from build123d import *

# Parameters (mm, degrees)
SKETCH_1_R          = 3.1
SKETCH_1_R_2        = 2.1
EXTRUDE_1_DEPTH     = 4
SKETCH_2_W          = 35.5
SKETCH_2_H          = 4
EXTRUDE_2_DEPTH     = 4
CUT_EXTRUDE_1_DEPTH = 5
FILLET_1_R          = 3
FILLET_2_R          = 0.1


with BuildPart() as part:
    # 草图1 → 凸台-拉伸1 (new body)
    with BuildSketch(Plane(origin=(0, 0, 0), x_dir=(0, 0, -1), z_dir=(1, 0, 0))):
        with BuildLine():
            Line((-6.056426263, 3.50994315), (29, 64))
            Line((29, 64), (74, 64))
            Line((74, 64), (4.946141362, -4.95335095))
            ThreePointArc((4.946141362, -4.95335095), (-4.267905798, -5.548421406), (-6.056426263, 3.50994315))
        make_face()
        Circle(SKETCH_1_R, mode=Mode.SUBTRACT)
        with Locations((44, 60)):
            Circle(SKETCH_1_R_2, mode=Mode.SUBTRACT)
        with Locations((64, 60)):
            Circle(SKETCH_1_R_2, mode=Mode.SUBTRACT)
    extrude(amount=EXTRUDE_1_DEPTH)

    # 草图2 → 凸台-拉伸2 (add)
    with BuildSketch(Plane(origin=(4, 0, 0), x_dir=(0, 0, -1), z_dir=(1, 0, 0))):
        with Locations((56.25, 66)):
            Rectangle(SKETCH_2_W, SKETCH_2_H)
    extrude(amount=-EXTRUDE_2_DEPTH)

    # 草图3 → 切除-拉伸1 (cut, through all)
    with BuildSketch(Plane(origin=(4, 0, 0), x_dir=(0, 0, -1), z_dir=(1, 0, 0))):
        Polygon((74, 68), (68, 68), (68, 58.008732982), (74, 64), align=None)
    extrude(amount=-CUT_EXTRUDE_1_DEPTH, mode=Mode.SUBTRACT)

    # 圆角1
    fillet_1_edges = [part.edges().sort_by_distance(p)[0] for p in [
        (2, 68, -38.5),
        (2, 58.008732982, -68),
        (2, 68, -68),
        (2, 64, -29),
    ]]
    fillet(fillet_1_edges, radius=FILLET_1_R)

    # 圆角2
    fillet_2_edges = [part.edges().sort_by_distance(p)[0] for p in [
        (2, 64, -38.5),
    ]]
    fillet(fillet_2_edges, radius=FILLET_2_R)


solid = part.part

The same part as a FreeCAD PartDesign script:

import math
import FreeCAD as App
import Part
import Sketcher

V = App.Vector


def edges_at(feature, points):
    """Names of the edges that pass closest to the given points."""
    edges = feature.Shape.Edges
    near = lambda p: min(range(len(edges)), key=lambda i: edges[i].distToShape(Part.Vertex(*p))[0])
    return sorted({f"Edge{near(p) + 1}" for p in points})


def add_polygon(sketch, points):
    """Adds a closed chain of lines whose ends are joined by coincident constraints."""
    first, n = sketch.GeometryCount, len(points)
    for a, b in zip(points, points[1:] + points[:1]):
        sketch.addGeometry(Part.LineSegment(App.Vector(*a, 0), App.Vector(*b, 0)), False)
    for i in range(n):
        sketch.addConstraint(Sketcher.Constraint("Coincident", first + i, 2, first + (i + 1) % n, 1))

doc = App.newDocument("Part")
body = doc.addObject("PartDesign::Body", "Body")

# Sketch on YZ plane
sketch1 = body.newObject("Sketcher::SketchObject", "Sketch")
sketch1.AttachmentSupport = (doc.getObject("YZ_Plane"), [""])
sketch1.MapMode = "FlatFace"
sketch1.addGeometry([
    Part.LineSegment(V(64, -29, 0), V(3.509943, 6.056426, 0)),  # 0
    Part.ArcOfCircle(Part.Circle(V(0, 0, 0), V(0, 0, 1), 7), math.radians(59.905979), math.radians(224.958273)),  # 1
    Part.LineSegment(V(-4.953351, -4.946141, 0), V(64, -74, 0)),  # 2
    Part.LineSegment(V(64, -74, 0), V(64, -29, 0)),  # 3
    Part.Circle(V(0, 0, 0), V(0, 0, 1), 3.1),  # 4
    Part.Circle(V(60, -64, 0), V(0, 0, 1), 2.1),  # 5
    Part.Circle(V(60, -44, 0), V(0, 0, 1), 2.1),  # 6
], False)
sketch1.addConstraint([
    Sketcher.Constraint("Tangent", 0, 2, 1, 1),
    Sketcher.Constraint("Tangent", 1, 2, 2, 1),
    Sketcher.Constraint("Coincident", 2, 2, 3, 1),
    Sketcher.Constraint("Coincident", 3, 2, 0, 1),
    Sketcher.Constraint("Vertical", 3),
    Sketcher.Constraint("Coincident", 1, 3, -1, 1),
    Sketcher.Constraint("Coincident", 4, 3, -1, 1),
    Sketcher.Constraint("Equal", 5, 6),
    Sketcher.Constraint("Vertical", 5, 3, 6, 3),
    Sketcher.Constraint("Radius", 1, 7.0),
    Sketcher.Constraint("Diameter", 4, 6.2),
    Sketcher.Constraint("Diameter", 5, 4.2),
    Sketcher.Constraint("DistanceY", 3, 1, 3, 2, 45.0),
    Sketcher.Constraint("DistanceX", -1, 1, 5, 3, 60.0),
    Sketcher.Constraint("DistanceY", 5, 3, -1, 1, 64.0),
    Sketcher.Constraint("DistanceY", 6, 3, -1, 1, 44.0),
    Sketcher.Constraint("DistanceX", -1, 1, 2, 2, 64.0),
    Sketcher.Constraint("DistanceY", 2, 2, -1, 1, 74.0),
])
pad1 = body.newObject("PartDesign::Pad", "Pad")
pad1.Profile = sketch1
pad1.Length = 4

# Sketch on YZ plane
sketch2 = body.newObject("Sketcher::SketchObject", "Sketch001")
sketch2.AttachmentSupport = (doc.getObject("YZ_Plane"), [""])
sketch2.MapMode = "FlatFace"
sketch2.AttachmentOffset = App.Placement(V(0, 0, 4), App.Rotation())
add_polygon(sketch2, [(68, -38.5), (64, -38.5), (64, -74), (68, -74)])  # lines 0-3
sketch2.addConstraint([
    Sketcher.Constraint("Horizontal", 0),
    Sketcher.Constraint("Vertical", 1),
    Sketcher.Constraint("Horizontal", 2),
    Sketcher.Constraint("Vertical", 3),
    Sketcher.Constraint("DistanceX", 0, 2, 0, 1, 4.0),
    Sketcher.Constraint("DistanceY", 1, 2, 1, 1, 35.5),
    Sketcher.Constraint("DistanceX", -1, 1, 0, 2, 64.0),
    Sketcher.Constraint("DistanceY", 1, 2, -1, 1, 74.0),
])
pad2 = body.newObject("PartDesign::Pad", "Pad001")
pad2.Profile = sketch2
pad2.Length = 4
pad2.Reversed = True

# Sketch on YZ plane
sketch3 = body.newObject("Sketcher::SketchObject", "Sketch002")
sketch3.AttachmentSupport = (doc.getObject("YZ_Plane"), [""])
sketch3.MapMode = "FlatFace"
sketch3.AttachmentOffset = App.Placement(V(0, 0, 4), App.Rotation())
add_polygon(sketch3, [(68, -74), (68, -68), (58.008733, -68), (64, -74)])  # lines 0-3
sketch3.addConstraint([
    Sketcher.Constraint("Vertical", 0),
    Sketcher.Constraint("Horizontal", 1),
    Sketcher.Constraint("Horizontal", 3),
    Sketcher.Constraint("DistanceX", 3, 1, 3, 2, 4.0),
    Sketcher.Constraint("DistanceY", 0, 1, 0, 2, 6.0),
    Sketcher.Constraint("DistanceX", -1, 1, 0, 2, 68.0),
    Sketcher.Constraint("DistanceY", 0, 2, -1, 1, 68.0),
    Sketcher.Constraint("Distance", 2, 8.479108),
])
pocket1 = body.newObject("PartDesign::Pocket", "Pocket")
pocket1.Profile = sketch3
pocket1.Type = "ThroughAll"
doc.recompute()

fillet = body.newObject("PartDesign::Fillet", "Fillet")
fillet.Base = (pocket1, edges_at(pocket1, [
    (2, 68, -38.5),
    (2, 58.009, -68),
    (2, 68, -68),
    (2, 64, -29),
]))
fillet.Radius = 3
doc.recompute()

fillet2 = body.newObject("PartDesign::Fillet", "Fillet001")
fillet2.Base = (fillet, edges_at(fillet, [(2, 64, -38.5)]))
fillet2.Radius = 0.1

doc.recompute()
